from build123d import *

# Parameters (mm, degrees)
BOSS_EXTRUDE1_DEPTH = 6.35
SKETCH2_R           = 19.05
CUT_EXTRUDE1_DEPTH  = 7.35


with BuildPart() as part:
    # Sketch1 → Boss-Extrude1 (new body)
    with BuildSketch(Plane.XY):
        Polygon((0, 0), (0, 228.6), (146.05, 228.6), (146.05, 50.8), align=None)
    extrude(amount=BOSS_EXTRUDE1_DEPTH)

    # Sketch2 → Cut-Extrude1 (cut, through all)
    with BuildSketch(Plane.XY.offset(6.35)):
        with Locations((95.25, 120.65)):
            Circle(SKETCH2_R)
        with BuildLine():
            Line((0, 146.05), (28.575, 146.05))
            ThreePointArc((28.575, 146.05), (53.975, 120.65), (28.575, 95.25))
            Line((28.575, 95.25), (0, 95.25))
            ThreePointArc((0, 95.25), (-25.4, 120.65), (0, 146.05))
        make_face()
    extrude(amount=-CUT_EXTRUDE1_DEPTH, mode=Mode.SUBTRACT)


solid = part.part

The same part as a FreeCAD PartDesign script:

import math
import FreeCAD as App
import Part
import Sketcher
from FreeCAD import Vector
Q = App.Units.Quantity


def add_polygon(sketch, points):
    """Adds a closed chain of lines whose ends are joined by coincident constraints."""
    first, n = sketch.GeometryCount, len(points)
    for a, b in zip(points, points[1:] + points[:1]):
        sketch.addGeometry(Part.LineSegment(App.Vector(*a, 0), App.Vector(*b, 0)), False)
    for i in range(n):
        sketch.addConstraint(Sketcher.Constraint("Coincident", first + i, 2, first + (i + 1) % n, 1))

doc = App.newDocument("Part")
body = doc.addObject("PartDesign::Body", "Body")

# Sketch on XY plane
sketch1 = body.newObject("Sketcher::SketchObject", "Sketch")
sketch1.AttachmentSupport = (doc.getObject("XY_Plane"), [""])
sketch1.MapMode = "FlatFace"
add_polygon(sketch1, [(0, 229), (0, 0), (146, 51), (146, 229)])  # lines 0-3
sketch1.addConstraint([
    Sketcher.Constraint("Vertical", 0),
    Sketcher.Constraint("Vertical", 2),
    Sketcher.Constraint("Horizontal", 3),
    Sketcher.Constraint("Coincident", 0, 2, -1, 1),
    Sketcher.Constraint("DistanceY", 0, 2, 0, 1, Q("9 in")),
    Sketcher.Constraint("DistanceY", 2, 1, 2, 2, Q("7 in")),
    Sketcher.Constraint("DistanceX", 3, 2, 3, 1, Q("5.75 in")),
])
pad1 = body.newObject("PartDesign::Pad", "Pad")
pad1.Profile = sketch1
pad1.Length = Q("0.25 in")

# Sketch on XY plane
sketch2 = body.newObject("Sketcher::SketchObject", "Sketch001")
sketch2.AttachmentSupport = (doc.getObject("XY_Plane"), [""])
sketch2.MapMode = "FlatFace"
sketch2.AttachmentOffset = App.Placement(Vector(0, 0, 0.25 * 25.4), App.Rotation())
sketch2.addGeometry([
    Part.Circle(Vector(95, 121, 0), Vector(0, 0, 1), 19),  # 0
    Part.LineSegment(Vector(29, 146, 0), Vector(0, 146, 0)),  # 1
    Part.ArcOfCircle(Part.Circle(Vector(0, 121, 0), Vector(0, 0, 1), 25), math.radians(90), math.radians(270)),  # 2
    Part.LineSegment(Vector(0, 95, 0), Vector(29, 95, 0)),  # 3
    Part.ArcOfCircle(Part.Circle(Vector(29, 121, 0), Vector(0, 0, 1), 25), math.radians(-90), math.radians(90)),  # 4
], False)
sketch2.addConstraint([
    Sketcher.Constraint("Tangent", 1, 2, 2, 1),
    Sketcher.Constraint("Tangent", 2, 2, 3, 1),
    Sketcher.Constraint("Tangent", 3, 2, 4, 1),
    Sketcher.Constraint("Tangent", 4, 2, 1, 1),
    Sketcher.Constraint("Horizontal", 1),
    Sketcher.Constraint("Horizontal", 3),
    Sketcher.Constraint("PointOnObject", 2, 3, -2),
    Sketcher.Constraint("Horizontal", 0, 3, 2, 3),
    Sketcher.Constraint("Radius", 2, Q("1 in")),
    Sketcher.Constraint("Diameter", 0, Q("1.5 in")),
    Sketcher.Constraint("DistanceX", 1, 2, 1, 1, Q("1.125 in")),
    Sketcher.Constraint("DistanceX", -1, 1, 0, 3, Q("3.75 in")),
    Sketcher.Constraint("DistanceY", -1, 1, 0, 3, Q("4.75 in")),
])
pocket1 = body.newObject("PartDesign::Pocket", "Pocket")
pocket1.Profile = sketch2
pocket1.Type = "ThroughAll"

doc.recompute()
